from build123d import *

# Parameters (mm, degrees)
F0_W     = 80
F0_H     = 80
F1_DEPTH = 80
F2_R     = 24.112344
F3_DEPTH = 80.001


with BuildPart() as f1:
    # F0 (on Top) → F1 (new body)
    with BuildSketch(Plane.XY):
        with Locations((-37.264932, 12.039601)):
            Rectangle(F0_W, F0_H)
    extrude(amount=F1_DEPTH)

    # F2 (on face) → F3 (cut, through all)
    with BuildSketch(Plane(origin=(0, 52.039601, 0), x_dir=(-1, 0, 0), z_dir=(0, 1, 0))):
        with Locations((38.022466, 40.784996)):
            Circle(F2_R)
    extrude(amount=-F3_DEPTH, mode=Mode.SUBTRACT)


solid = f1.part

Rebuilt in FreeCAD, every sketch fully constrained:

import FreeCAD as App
import Part
import Sketcher
from FreeCAD import Vector
Q = App.Units.Quantity


def add_polygon(sketch, points):
    """Adds a closed chain of lines whose ends are joined by coincident constraints."""
    first, n = sketch.GeometryCount, len(points)
    for a, b in zip(points, points[1:] + points[:1]):
        sketch.addGeometry(Part.LineSegment(App.Vector(*a, 0), App.Vector(*b, 0)), False)
    for i in range(n):
        sketch.addConstraint(Sketcher.Constraint("Coincident", first + i, 2, first + (i + 1) % n, 1))

doc = App.newDocument("Part")
body = doc.addObject("PartDesign::Body", "Body")

# Sketch on XY plane
sketch1 = body.newObject("Sketcher::SketchObject", "Sketch")
sketch1.AttachmentSupport = (doc.getObject("XY_Plane"), [""])
sketch1.MapMode = "FlatFace"
add_polygon(sketch1, [(-77.264932, 52.039601), (-77.264932, -27.960399), (2.735068, -27.960399), (2.735068, 52.039601)])  # lines 0-3
sketch1.addConstraint(Sketcher.Constraint("Vertical", 0))
sketch1.addConstraint(Sketcher.Constraint("Horizontal", 1))
sketch1.addConstraint(Sketcher.Constraint("Vertical", 2))
sketch1.addConstraint(Sketcher.Constraint("Horizontal", 3))
sketch1.addConstraint(Sketcher.Constraint("Equal", 3, 0))
sketch1.addConstraint(Sketcher.Constraint("DistanceX", 1, 1, 1, 2, Q("80 mm")))
sketch1.addConstraint(Sketcher.Constraint("DistanceY", 0, 2, -1, 1, Q("27.960399 mm")))
sketch1.addConstraint(Sketcher.Constraint("DistanceX", 0, 2, -1, 1, Q("77.264932 mm")))
pad1 = body.newObject("PartDesign::Pad", "Pad")
pad1.Profile = sketch1
pad1.Length = 80

# Sketch on XZ plane
sketch2 = body.newObject("Sketcher::SketchObject", "Sketch001")
sketch2.AttachmentSupport = (doc.getObject("XZ_Plane"), [""])
sketch2.MapMode = "FlatFace"
sketch2.AttachmentOffset = App.Placement(Vector(0, 0, -52.039601), App.Rotation())
sketch2.addGeometry(Part.Circle(Vector(-38.022466, 40.784996, 0), Vector(0, 0, 1), 24.112344), False)
sketch2.addConstraint(Sketcher.Constraint("Diameter", 0, Q("48.224688 mm")))
sketch2.addConstraint(Sketcher.Constraint("DistanceX", 0, 3, -1, 1, Q("38.022466 mm")))
sketch2.addConstraint(Sketcher.Constraint("DistanceY", -1, 1, 0, 3, Q("40.784996 mm")))
pocket1 = body.newObject("PartDesign::Pocket", "Pocket")
pocket1.Profile = sketch2
pocket1.Type = "ThroughAll"
pocket1.Reversed = True

doc.recompute()
